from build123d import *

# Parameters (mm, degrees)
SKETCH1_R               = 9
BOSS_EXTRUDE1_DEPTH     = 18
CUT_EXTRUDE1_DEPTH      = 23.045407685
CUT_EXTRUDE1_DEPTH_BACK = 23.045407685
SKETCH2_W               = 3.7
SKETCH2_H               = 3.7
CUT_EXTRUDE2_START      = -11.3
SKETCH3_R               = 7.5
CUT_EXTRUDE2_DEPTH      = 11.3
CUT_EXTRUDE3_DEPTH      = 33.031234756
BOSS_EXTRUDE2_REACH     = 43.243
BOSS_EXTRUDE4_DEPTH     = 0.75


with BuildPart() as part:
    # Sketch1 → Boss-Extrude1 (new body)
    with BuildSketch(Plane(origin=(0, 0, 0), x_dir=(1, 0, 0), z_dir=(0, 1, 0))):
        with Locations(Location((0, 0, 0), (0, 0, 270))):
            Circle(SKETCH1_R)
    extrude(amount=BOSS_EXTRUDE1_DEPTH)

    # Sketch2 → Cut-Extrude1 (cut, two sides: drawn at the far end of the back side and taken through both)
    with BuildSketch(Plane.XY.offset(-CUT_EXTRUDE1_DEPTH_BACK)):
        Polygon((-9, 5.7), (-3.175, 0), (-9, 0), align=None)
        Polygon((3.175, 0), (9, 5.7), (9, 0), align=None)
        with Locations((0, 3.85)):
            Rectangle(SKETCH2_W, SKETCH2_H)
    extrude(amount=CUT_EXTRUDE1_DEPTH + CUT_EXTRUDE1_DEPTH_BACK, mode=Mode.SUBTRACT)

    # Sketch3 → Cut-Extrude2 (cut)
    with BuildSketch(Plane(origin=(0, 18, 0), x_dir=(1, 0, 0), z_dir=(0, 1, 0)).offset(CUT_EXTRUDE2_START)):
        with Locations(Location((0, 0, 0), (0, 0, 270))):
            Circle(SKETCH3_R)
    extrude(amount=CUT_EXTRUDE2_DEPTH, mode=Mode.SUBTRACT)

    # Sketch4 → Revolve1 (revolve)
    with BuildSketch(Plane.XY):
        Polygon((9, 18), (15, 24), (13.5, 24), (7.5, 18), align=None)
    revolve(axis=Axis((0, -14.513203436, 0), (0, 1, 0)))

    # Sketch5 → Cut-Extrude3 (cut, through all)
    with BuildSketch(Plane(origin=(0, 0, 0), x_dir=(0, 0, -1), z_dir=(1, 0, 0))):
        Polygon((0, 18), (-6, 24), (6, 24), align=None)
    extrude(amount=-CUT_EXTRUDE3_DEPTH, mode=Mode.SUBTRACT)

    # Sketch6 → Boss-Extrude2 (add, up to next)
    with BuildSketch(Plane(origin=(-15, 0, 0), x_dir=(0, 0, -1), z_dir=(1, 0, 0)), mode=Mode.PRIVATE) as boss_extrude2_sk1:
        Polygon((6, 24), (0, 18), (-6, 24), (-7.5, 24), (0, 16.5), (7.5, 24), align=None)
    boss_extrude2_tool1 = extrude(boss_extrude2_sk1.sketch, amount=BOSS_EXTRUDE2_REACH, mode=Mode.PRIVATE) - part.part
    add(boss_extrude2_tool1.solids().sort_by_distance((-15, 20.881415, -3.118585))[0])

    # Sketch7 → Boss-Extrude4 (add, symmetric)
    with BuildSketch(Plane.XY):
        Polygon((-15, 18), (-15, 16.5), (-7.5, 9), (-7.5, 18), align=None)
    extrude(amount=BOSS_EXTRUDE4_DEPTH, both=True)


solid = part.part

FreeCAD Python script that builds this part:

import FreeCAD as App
import Part
import Sketcher
from FreeCAD import Vector
Q = App.Units.Quantity

doc = App.newDocument("Part")
params = doc.addObject("Spreadsheet::Sheet", "Params")
for row, (alias, value) in enumerate([
    ("sketch1_diameter", "18 mm"),
    ("pad1_length", "18 mm"),
    ("sketch2_width", "3.7 mm"),
    ("sketch2_height", "5.7 mm"),
    ("sketch3_diameter", "15 mm"),
    ("pocket2_length", "11.3 mm"),
    ("sketch4_width", "1.5 mm"),
    ("revolution_angle", "360 deg"),
    ("sketch5_height", "12 mm"),
    ("sketch6_height", "1.5 mm"),
    ("sketch7_height", "9 mm"),
    ("sketch7_width", "7.5 mm"),
    ("pad3_length", "1.5 mm"),
], start=1):
    params.set(f"A{row}", alias)
    params.set(f"B{row}", "=" + value)
    params.setAlias(f"B{row}", alias)

body = doc.addObject("PartDesign::Body", "Body")

# Sketch on XZ plane
sketch1 = body.newObject("Sketcher::SketchObject", "Sketch")
sketch1.AttachmentSupport = (doc.getObject("XZ_Plane"), [""])
sketch1.MapMode = "FlatFace"
sketch1.addGeometry(Part.Circle(Vector(0, 0, 0), Vector(0, 0, 1), 9), False)
sketch1.addConstraint(Sketcher.Constraint("Coincident", 0, 3, -1, 1))
sketch1.addConstraint(Sketcher.Constraint("Diameter", 0, 18.0))
sketch1.setExpression("Constraints[1]", "Params.sketch1_diameter")
pad1 = body.newObject("PartDesign::Pad", "Pad")
pad1.Profile = sketch1
pad1.setExpression("Length", "Params.pad1_length")
pad1.Reversed = True

# Sketch on XY plane
sketch2 = body.newObject("Sketcher::SketchObject", "Sketch001")
sketch2.AttachmentSupport = (doc.getObject("XY_Plane"), [""])
sketch2.MapMode = "FlatFace"
sketch2.addGeometry(Part.LineSegment(Vector(-3.2, 0, 0), Vector(-9, 5.7, 0)), False)
sketch2.addGeometry(Part.LineSegment(Vector(-9, 5.7, 0), Vector(-9, 0, 0)), False)
sketch2.addGeometry(Part.LineSegment(Vector(-9, 0, 0), Vector(-3.2, 0, 0)), False)
sketch2.addGeometry(Part.LineSegment(Vector(9, 5.7, 0), Vector(3.2, 0, 0)), False)
sketch2.addGeometry(Part.LineSegment(Vector(3.2, 0, 0), Vector(9, 0, 0)), False)
sketch2.addGeometry(Part.LineSegment(Vector(9, 0, 0), Vector(9, 5.7, 0)), False)
sketch2.addGeometry(Part.LineSegment(Vector(-1.9, 5.7, 0), Vector(-1.9, 2, 0)), False)
sketch2.addGeometry(Part.LineSegment(Vector(-1.9, 2, 0), Vector(1.9, 2, 0)), False)
sketch2.addGeometry(Part.LineSegment(Vector(1.9, 2, 0), Vector(1.9, 5.7, 0)), False)
sketch2.addGeometry(Part.LineSegment(Vector(1.9, 5.7, 0), Vector(-1.9, 5.7, 0)), False)
sketch2.addConstraint(Sketcher.Constraint("Coincident", 0, 2, 1, 1))
sketch2.addConstraint(Sketcher.Constraint("Coincident", 1, 2, 2, 1))
sketch2.addConstraint(Sketcher.Constraint("Coincident", 2, 2, 0, 1))
sketch2.addConstraint(Sketcher.Constraint("Coincident", 3, 2, 4, 1))
sketch2.addConstraint(Sketcher.Constraint("Coincident", 4, 2, 5, 1))
sketch2.addConstraint(Sketcher.Constraint("Coincident", 5, 2, 3, 1))
sketch2.addConstraint(Sketcher.Constraint("Coincident", 6, 2, 7, 1))
sketch2.addConstraint(Sketcher.Constraint("Coincident", 7, 2, 8, 1))
sketch2.addConstraint(Sketcher.Constraint("Coincident", 8, 2, 9, 1))
sketch2.addConstraint(Sketcher.Constraint("Coincident", 9, 2, 6, 1))
sketch2.addConstraint(Sketcher.Constraint("Vertical", 1))
sketch2.addConstraint(Sketcher.Constraint("Horizontal", 2))
sketch2.addConstraint(Sketcher.Constraint("Horizontal", 4))
sketch2.addConstraint(Sketcher.Constraint("Vertical", 5))
sketch2.addConstraint(Sketcher.Constraint("Vertical", 6))
sketch2.addConstraint(Sketcher.Constraint("Horizontal", 7))
sketch2.addConstraint(Sketcher.Constraint("Vertical", 8))
sketch2.addConstraint(Sketcher.Constraint("Horizontal", 9))
sketch2.addConstraint(Sketcher.Constraint("Symmetric", 2, 2, 3, 2, -1, 1))
sketch2.addConstraint(Sketcher.Constraint("Symmetric", 1, 2, 4, 2, -2))
sketch2.addConstraint(Sketcher.Constraint("Horizontal", 0, 2, 5, 2))
sketch2.addConstraint(Sketcher.Constraint("Horizontal", 5, 2, 8, 2))
sketch2.addConstraint(Sketcher.Constraint("Equal", 9, 6))
sketch2.addConstraint(Sketcher.Constraint("DistanceX", 7, 1, 7, 2, 3.7))
sketch2.addConstraint(Sketcher.Constraint("DistanceY", 1, 2, 1, 1, 5.7))
sketch2.addConstraint(Sketcher.Constraint("DistanceX", 0, 2, -1, 1, 9.0))
sketch2.addConstraint(Sketcher.Constraint("DistanceX", 2, 1, 2, 2, 5.825))
sketch2.addConstraint(Sketcher.Constraint("DistanceX", 6, 2, -1, 1, 1.85))
sketch2.setExpression("Constraints[23]", "Params.sketch2_width")
sketch2.setExpression("Constraints[24]", "Params.sketch2_height")
pocket1 = body.newObject("PartDesign::Pocket", "Pocket")
pocket1.Profile = sketch2
pocket1.Type = "ThroughAll"
pocket1.Midplane = True

# Sketch on XZ plane
sketch3 = body.newObject("Sketcher::SketchObject", "Sketch002")
sketch3.AttachmentSupport = (doc.getObject("XZ_Plane"), [""])
sketch3.MapMode = "FlatFace"
sketch3.AttachmentOffset = App.Placement(Vector(0, 0, -6.7), App.Rotation())
sketch3.addGeometry(Part.Circle(Vector(0, 0, 0), Vector(0, 0, 1), 8), False)
sketch3.addConstraint(Sketcher.Constraint("Coincident", 0, 3, -1, 1))
sketch3.addConstraint(Sketcher.Constraint("Diameter", 0, 15.0))
sketch3.setExpression("Constraints[1]", "Params.sketch3_diameter")
pocket2 = body.newObject("PartDesign::Pocket", "Pocket001")
pocket2.Profile = sketch3
pocket2.setExpression("Length", "Params.pocket2_length")

# Sketch on XY plane
sketch4 = body.newObject("Sketcher::SketchObject", "Sketch003")
sketch4.AttachmentSupport = (doc.getObject("XY_Plane"), [""])
sketch4.MapMode = "FlatFace"
sketch4.addGeometry(Part.LineSegment(Vector(9, 18, 0), Vector(15, 24, 0)), False)
sketch4.addGeometry(Part.LineSegment(Vector(15, 24, 0), Vector(13.5, 24, 0)), False)
sketch4.addGeometry(Part.LineSegment(Vector(13.5, 24, 0), Vector(7.5, 18, 0)), False)
sketch4.addGeometry(Part.LineSegment(Vector(7.5, 18, 0), Vector(9, 18, 0)), False)
sketch4.addConstraint(Sketcher.Constraint("Coincident", 0, 2, 1, 1))
sketch4.addConstraint(Sketcher.Constraint("Coincident", 1, 2, 2, 1))
sketch4.addConstraint(Sketcher.Constraint("Coincident", 2, 2, 3, 1))
sketch4.addConstraint(Sketcher.Constraint("Coincident", 3, 2, 0, 1))
sketch4.addConstraint(Sketcher.Constraint("Horizontal", 1))
sketch4.addConstraint(Sketcher.Constraint("Horizontal", 3))
sketch4.addConstraint(Sketcher.Constraint("Parallel", 0, 2))
sketch4.addConstraint(Sketcher.Constraint("Angle", 0, Q("45 deg")))
sketch4.addConstraint(Sketcher.Constraint("DistanceX", 1, 2, 1, 1, 1.5))
sketch4.addConstraint(Sketcher.Constraint("DistanceX", -1, 1, 0, 2, 15.0))
sketch4.addConstraint(Sketcher.Constraint("DistanceY", -1, 1, 0, 2, 24.0))
sketch4.addConstraint(Sketcher.Constraint("DistanceY", -1, 1, 2, 2, 18.0))
sketch4.setExpression("Constraints[8]", "Params.sketch4_width")
revolution = body.newObject("PartDesign::Revolution", "Revolution")
revolution.Profile = sketch4
revolution.ReferenceAxis = (sketch4, ["V_Axis"])
revolution.setExpression("Angle", "Params.revolution_angle")

# Sketch on YZ plane
sketch5 = body.newObject("Sketcher::SketchObject", "Sketch004")
sketch5.AttachmentSupport = (doc.getObject("YZ_Plane"), [""])
sketch5.MapMode = "FlatFace"
sketch5.addGeometry(Part.LineSegment(Vector(24, 6, 0), Vector(18, 0, 0)), False)
sketch5.addGeometry(Part.LineSegment(Vector(18, 0, 0), Vector(24, -6, 0)), False)
sketch5.addGeometry(Part.LineSegment(Vector(24, -6, 0), Vector(24, 6, 0)), False)
sketch5.addConstraint(Sketcher.Constraint("Coincident", 0, 2, 1, 1))
sketch5.addConstraint(Sketcher.Constraint("Coincident", 1, 2, 2, 1))
sketch5.addConstraint(Sketcher.Constraint("Coincident", 2, 2, 0, 1))
sketch5.addConstraint(Sketcher.Constraint("Vertical", 2))
sketch5.addConstraint(Sketcher.Constraint("PointOnObject", 0, 2, -1))
sketch5.addConstraint(Sketcher.Constraint("Perpendicular", 0, 1))
sketch5.addConstraint(Sketcher.Constraint("Equal", 0, 1))
sketch5.addConstraint(Sketcher.Constraint("DistanceY", 2, 1, 2, 2, 12.0))
sketch5.addConstraint(Sketcher.Constraint("DistanceX", -1, 1, 0, 2, 18.0))
sketch5.setExpression("Constraints[7]", "Params.sketch5_height")
pocket3 = body.newObject("PartDesign::Pocket", "Pocket002")
pocket3.Profile = sketch5
pocket3.Type = "ThroughAll"

# Sketch on YZ plane
sketch6 = body.newObject("Sketcher::SketchObject", "Sketch005")
sketch6.AttachmentSupport = (doc.getObject("YZ_Plane"), [""])
sketch6.MapMode = "FlatFace"
sketch6.AttachmentOffset = App.Placement(Vector(0, 0, -15), App.Rotation())
sketch6.addGeometry(Part.LineSegment(Vector(24, -6, 0), Vector(18, 0, 0)), False)
sketch6.addGeometry(Part.LineSegment(Vector(18, 0, 0), Vector(24, 6, 0)), False)
sketch6.addGeometry(Part.LineSegment(Vector(24, 6, 0), Vector(24, 7.5, 0)), False)
sketch6.addGeometry(Part.LineSegment(Vector(24, 7.5, 0), Vector(16.5, 0, 0)), False)
sketch6.addGeometry(Part.LineSegment(Vector(16.5, 0, 0), Vector(24, -7.5, 0)), False)
sketch6.addGeometry(Part.LineSegment(Vector(24, -7.5, 0), Vector(24, -6, 0)), False)
sketch6.addConstraint(Sketcher.Constraint("Coincident", 0, 2, 1, 1))
sketch6.addConstraint(Sketcher.Constraint("Coincident", 1, 2, 2, 1))
sketch6.addConstraint(Sketcher.Constraint("Coincident", 2, 2, 3, 1))
sketch6.addConstraint(Sketcher.Constraint("Coincident", 3, 2, 4, 1))
sketch6.addConstraint(Sketcher.Constraint("Coincident", 4, 2, 5, 1))
sketch6.addConstraint(Sketcher.Constraint("Coincident", 5, 2, 0, 1))
sketch6.addConstraint(Sketcher.Constraint("Vertical", 2))
sketch6.addConstraint(Sketcher.Constraint("Vertical", 5))
sketch6.addConstraint(Sketcher.Constraint("Symmetric", 2, 2, 4, 2, -1))
sketch6.addConstraint(Sketcher.Constraint("PointOnObject", 0, 2, -1))
sketch6.addConstraint(Sketcher.Constraint("PointOnObject", 3, 2, -1))
sketch6.addConstraint(Sketcher.Constraint("Perpendicular", 0, 1))
sketch6.addConstraint(Sketcher.Constraint("Parallel", 1, 3))
sketch6.addConstraint(Sketcher.Constraint("Perpendicular", 3, 4))
sketch6.addConstraint(Sketcher.Constraint("DistanceY", 2, 1, 2, 2, 1.5))
sketch6.addConstraint(Sketcher.Constraint("DistanceX", -1, 1, 0, 2, 18.0))
sketch6.addConstraint(Sketcher.Constraint("DistanceX", -1, 1, 1, 2, 24.0))
sketch6.setExpression("Constraints[14]", "Params.sketch6_height")
pad2 = body.newObject("PartDesign::Pad", "Pad001")
pad2.Profile = sketch6
pad2.Type = "UpToFirst"

# Sketch on XY plane
sketch7 = body.newObject("Sketcher::SketchObject", "Sketch006")
sketch7.AttachmentSupport = (doc.getObject("XY_Plane"), [""])
sketch7.MapMode = "FlatFace"
sketch7.addGeometry(Part.LineSegment(Vector(-15, 18, 0), Vector(-15, 16.5, 0)), False)
sketch7.addGeometry(Part.LineSegment(Vector(-15, 16.5, 0), Vector(-7.5, 9, 0)), False)
sketch7.addGeometry(Part.LineSegment(Vector(-7.5, 9, 0), Vector(-7.5, 18, 0)), False)
sketch7.addGeometry(Part.LineSegment(Vector(-7.5, 18, 0), Vector(-15, 18, 0)), False)
sketch7.addConstraint(Sketcher.Constraint("Coincident", 0, 2, 1, 1))
sketch7.addConstraint(Sketcher.Constraint("Coincident", 1, 2, 2, 1))
sketch7.addConstraint(Sketcher.Constraint("Coincident", 2, 2, 3, 1))
sketch7.addConstraint(Sketcher.Constraint("Coincident", 3, 2, 0, 1))
sketch7.addConstraint(Sketcher.Constraint("Vertical", 0))
sketch7.addConstraint(Sketcher.Constraint("Vertical", 2))
sketch7.addConstraint(Sketcher.Constraint("Horizontal", 3))
sketch7.addConstraint(Sketcher.Constraint("DistanceY", 2, 1, 2, 2, 9.0))
sketch7.addConstraint(Sketcher.Constraint("Angle", 1, Q("-45 deg")))
sketch7.addConstraint(Sketcher.Constraint("DistanceX", 3, 2, 3, 1, 7.5))
sketch7.addConstraint(Sketcher.Constraint("DistanceX", 0, 2, -1, 1, 15.0))
sketch7.addConstraint(Sketcher.Constraint("DistanceY", -1, 1, 1, 2, 9.0))
sketch7.setExpression("Constraints[7]", "Params.sketch7_height")
sketch7.setExpression("Constraints[9]", "Params.sketch7_width")
pad3 = body.newObject("PartDesign::Pad", "Pad002")
pad3.Profile = sketch7
pad3.setExpression("Length", "Params.pad3_length")
pad3.Midplane = True

doc.recompute()
